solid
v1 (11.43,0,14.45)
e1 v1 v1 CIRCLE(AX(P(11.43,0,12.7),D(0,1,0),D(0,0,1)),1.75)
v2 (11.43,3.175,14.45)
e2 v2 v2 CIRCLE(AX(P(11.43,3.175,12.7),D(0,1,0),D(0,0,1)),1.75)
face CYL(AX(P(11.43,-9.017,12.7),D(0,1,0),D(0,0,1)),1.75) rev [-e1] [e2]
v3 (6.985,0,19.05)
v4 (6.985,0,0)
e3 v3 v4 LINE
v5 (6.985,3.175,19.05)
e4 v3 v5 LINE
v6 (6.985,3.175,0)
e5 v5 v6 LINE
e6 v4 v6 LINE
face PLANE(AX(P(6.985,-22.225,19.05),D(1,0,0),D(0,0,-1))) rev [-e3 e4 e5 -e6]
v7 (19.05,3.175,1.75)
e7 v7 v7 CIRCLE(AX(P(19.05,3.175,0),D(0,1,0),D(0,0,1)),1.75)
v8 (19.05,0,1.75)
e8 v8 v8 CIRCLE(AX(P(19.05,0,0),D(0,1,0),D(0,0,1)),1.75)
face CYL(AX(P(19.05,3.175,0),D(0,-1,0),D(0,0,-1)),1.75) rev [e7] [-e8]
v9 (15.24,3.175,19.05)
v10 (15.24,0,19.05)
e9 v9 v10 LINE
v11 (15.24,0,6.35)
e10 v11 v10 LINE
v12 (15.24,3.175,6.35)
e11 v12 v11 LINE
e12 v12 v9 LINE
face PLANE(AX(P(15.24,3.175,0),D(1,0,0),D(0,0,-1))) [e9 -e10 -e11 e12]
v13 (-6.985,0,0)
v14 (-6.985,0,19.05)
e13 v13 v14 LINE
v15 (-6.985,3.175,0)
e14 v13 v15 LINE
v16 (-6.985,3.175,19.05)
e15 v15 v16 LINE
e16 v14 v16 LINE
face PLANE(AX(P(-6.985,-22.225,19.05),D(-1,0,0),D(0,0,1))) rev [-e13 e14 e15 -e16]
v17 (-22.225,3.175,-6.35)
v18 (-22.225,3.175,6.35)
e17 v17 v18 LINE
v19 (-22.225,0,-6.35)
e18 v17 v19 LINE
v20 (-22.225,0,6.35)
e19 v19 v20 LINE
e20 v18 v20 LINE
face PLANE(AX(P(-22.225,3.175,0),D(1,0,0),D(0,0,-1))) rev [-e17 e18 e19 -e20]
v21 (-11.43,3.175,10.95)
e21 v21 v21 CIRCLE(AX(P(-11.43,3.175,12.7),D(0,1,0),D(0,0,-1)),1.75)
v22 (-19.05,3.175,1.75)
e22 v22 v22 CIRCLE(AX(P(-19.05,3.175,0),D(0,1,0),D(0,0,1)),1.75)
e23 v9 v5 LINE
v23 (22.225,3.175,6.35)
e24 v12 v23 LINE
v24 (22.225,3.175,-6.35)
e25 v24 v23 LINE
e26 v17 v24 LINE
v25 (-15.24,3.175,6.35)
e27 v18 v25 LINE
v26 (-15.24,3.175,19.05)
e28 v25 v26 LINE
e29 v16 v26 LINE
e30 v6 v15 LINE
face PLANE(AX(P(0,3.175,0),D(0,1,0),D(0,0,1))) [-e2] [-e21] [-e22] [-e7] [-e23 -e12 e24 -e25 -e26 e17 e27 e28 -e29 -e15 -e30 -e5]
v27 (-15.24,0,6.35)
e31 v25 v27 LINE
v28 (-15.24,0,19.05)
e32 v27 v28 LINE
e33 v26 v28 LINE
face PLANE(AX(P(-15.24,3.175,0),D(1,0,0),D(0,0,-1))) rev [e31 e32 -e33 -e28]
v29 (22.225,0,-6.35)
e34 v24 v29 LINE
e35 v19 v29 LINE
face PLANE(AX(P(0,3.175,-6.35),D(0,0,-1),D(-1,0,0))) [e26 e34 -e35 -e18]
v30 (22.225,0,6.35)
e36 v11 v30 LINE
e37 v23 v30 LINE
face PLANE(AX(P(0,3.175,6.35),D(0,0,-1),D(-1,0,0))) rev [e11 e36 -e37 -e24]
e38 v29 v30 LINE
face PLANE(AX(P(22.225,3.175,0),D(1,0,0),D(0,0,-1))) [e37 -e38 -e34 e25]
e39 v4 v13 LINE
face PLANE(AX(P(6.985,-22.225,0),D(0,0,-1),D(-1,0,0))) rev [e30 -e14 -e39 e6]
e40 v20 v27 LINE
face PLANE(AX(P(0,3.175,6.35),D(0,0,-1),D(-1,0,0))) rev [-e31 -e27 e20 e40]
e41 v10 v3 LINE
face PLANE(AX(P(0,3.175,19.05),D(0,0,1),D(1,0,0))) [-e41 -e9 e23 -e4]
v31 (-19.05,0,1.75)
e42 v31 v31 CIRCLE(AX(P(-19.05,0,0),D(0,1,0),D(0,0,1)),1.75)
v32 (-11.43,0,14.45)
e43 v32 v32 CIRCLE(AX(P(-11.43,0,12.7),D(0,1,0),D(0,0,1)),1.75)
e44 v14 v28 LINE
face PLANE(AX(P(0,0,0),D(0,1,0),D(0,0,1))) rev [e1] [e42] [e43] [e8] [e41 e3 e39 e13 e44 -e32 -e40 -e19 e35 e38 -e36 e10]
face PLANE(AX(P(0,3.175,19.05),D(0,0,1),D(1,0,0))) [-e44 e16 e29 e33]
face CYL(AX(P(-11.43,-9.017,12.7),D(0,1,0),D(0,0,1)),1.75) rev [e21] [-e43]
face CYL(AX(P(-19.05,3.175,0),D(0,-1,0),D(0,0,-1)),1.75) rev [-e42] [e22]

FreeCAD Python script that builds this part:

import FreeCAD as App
import Part
import Sketcher

V = App.Vector
Q = App.Units.Quantity

doc = App.newDocument("Part")
params = doc.addObject("Spreadsheet::Sheet", "Params")
for row, (alias, value) in enumerate([
    ("sketch1_width", "1.2 in"),
    ("sketch1_height", "0.5 in"),
    ("sketch1_width2", "1.75 in"),
    ("pad1_length", "0.125 in"),
    ("pocket1_length", "0.48 in"),
    ("sketch3_width", "0.55 in"),
    ("sketch3_height", "0.75 in"),
    ("pocket2_length", "1 in"),
], start=1):
    params.set(f"A{row}", alias)
    params.set(f"B{row}", "=" + value)
    params.setAlias(f"B{row}", alias)

body = doc.addObject("PartDesign::Body", "Body")

sketch1 = doc.addObject("Sketcher::SketchObject", "Sketch")
body.addObject(sketch1)
sketch1.AttachmentSupport = (doc.XZ_Plane, [""])
sketch1.MapMode = "FlatFace"
sketch1.addGeometry([
    Part.LineSegment(V(22.2, 6.3, 0), V(22.2, -6.3, 0)),
    Part.LineSegment(V(22.2, -6.3, 0), V(-22.2, -6.3, 0)),
    Part.LineSegment(V(-22.2, -6.3, 0), V(-22.2, 6.3, 0)),
    Part.LineSegment(V(-22.2, 6.3, 0), V(-15.2, 6.3, 0)),
    Part.LineSegment(V(-15.2, 6.3, 0), V(-15.2, 19.1, 0)),
    Part.LineSegment(V(-15.2, 19.1, 0), V(15.2, 19.1, 0)),
    Part.LineSegment(V(15.2, 19.1, 0), V(15.2, 6.3, 0)),
    Part.LineSegment(V(15.2, 6.3, 0), V(22.2, 6.3, 0)),
    Part.Circle(V(19.1, 0, 0), V(0, 0, 1), 1.8),
    Part.Circle(V(-19.1, 0, 0), V(0, 0, 1), 1.8),
], False)
sketch1.addConstraint([
    Sketcher.Constraint("Coincident", 0, 2, 1, 1),
    Sketcher.Constraint("Coincident", 1, 2, 2, 1),
    Sketcher.Constraint("Coincident", 2, 2, 3, 1),
    Sketcher.Constraint("Coincident", 3, 2, 4, 1),
    Sketcher.Constraint("Coincident", 4, 2, 5, 1),
    Sketcher.Constraint("Coincident", 5, 2, 6, 1),
    Sketcher.Constraint("Coincident", 6, 2, 7, 1),
    Sketcher.Constraint("Coincident", 7, 2, 0, 1),
    Sketcher.Constraint("Vertical", 0),
    Sketcher.Constraint("Horizontal", 1),
    Sketcher.Constraint("Vertical", 2),
    Sketcher.Constraint("Horizontal", 3),
    Sketcher.Constraint("Vertical", 4),
    Sketcher.Constraint("Horizontal", 5),
    Sketcher.Constraint("Vertical", 6),
    Sketcher.Constraint("Horizontal", 7),
    Sketcher.Constraint("Equal", 8, 9),
    Sketcher.Constraint("Symmetric", 8, 3, 9, 3, -1, 1),
    Sketcher.Constraint("Symmetric", 0, 2, 2, 2, -1, 1),
    Sketcher.Constraint("Symmetric", 3, 2, 6, 2, -2),
    Sketcher.Constraint("PointOnObject", 8, 3, -1),
    Sketcher.Constraint("Equal", 2, 4),
    Sketcher.Constraint("DistanceX", 5, 1, 5, 2, Q("1.2 in")),
    Sketcher.Constraint("DistanceY", 0, 2, 0, 1, Q("0.5 in")),
    Sketcher.Constraint("DistanceX", 1, 2, 1, 1, Q("1.75 in")),
    Sketcher.Constraint("DistanceX", 9, 3, 8, 3, Q("1.5 in")),
    Sketcher.Constraint("Diameter", 8, 3.5),
])
sketch1.setExpression("Constraints[22]", "Params.sketch1_width")
sketch1.setExpression("Constraints[23]", "Params.sketch1_height")
sketch1.setExpression("Constraints[24]", "Params.sketch1_width2")
pad1 = doc.addObject("PartDesign::Pad", "Pad")
body.addObject(pad1)
pad1.Profile = sketch1
pad1.setExpression("Length", "Params.pad1_length")
pad1.Reversed = True

sketch2 = doc.addObject("Sketcher::SketchObject", "Sketch001")
body.addObject(sketch2)
sketch2.AttachmentSupport = (doc.XZ_Plane, [""])
sketch2.MapMode = "FlatFace"
sketch2.AttachmentOffset = App.Placement(V(0, 0, -0.125 * 25.4), App.Rotation())
sketch2.addGeometry([
    Part.Circle(V(11.4, 12.7, 0), V(0, 0, 1), 1.8),
    Part.Circle(V(-11.4, 12.7, 0), V(0, 0, 1), 1.8),
], False)
sketch2.addConstraint([
    Sketcher.Constraint("Equal", 0, 1),
    Sketcher.Constraint("Symmetric", 0, 3, 1, 3, -2),
    Sketcher.Constraint("DistanceY", -1, 1, 0, 3, Q("0.5 in")),
    Sketcher.Constraint("DistanceX", 1, 3, 0, 3, Q("0.9 in")),
    Sketcher.Constraint("Diameter", 0, 3.5),
])
pocket1 = doc.addObject("PartDesign::Pocket", "Pocket")
body.addObject(pocket1)
pocket1.Profile = sketch2
pocket1.setExpression("Length", "Params.pocket1_length")
pocket1.Reversed = True

sketch3 = doc.addObject("Sketcher::SketchObject", "Sketch002")
body.addObject(sketch3)
sketch3.AttachmentSupport = (doc.XZ_Plane, [""])
sketch3.MapMode = "FlatFace"
sketch3.AttachmentOffset = App.Placement(V(0, 0, -0.125 * 25.4), App.Rotation())
sketch3.addGeometry([
    Part.LineSegment(V(7, 19, 0), V(7, 0, 0)),
    Part.LineSegment(V(7, 0, 0), V(-7, 0, 0)),
    Part.LineSegment(V(-7, 0, 0), V(-7, 19, 0)),
    Part.LineSegment(V(-7, 19, 0), V(7, 19, 0)),
], False)
sketch3.addConstraint([
    Sketcher.Constraint("Coincident", 0, 2, 1, 1),
    Sketcher.Constraint("Coincident", 1, 2, 2, 1),
    Sketcher.Constraint("Coincident", 2, 2, 3, 1),
    Sketcher.Constraint("Coincident", 3, 2, 0, 1),
    Sketcher.Constraint("Vertical", 0),
    Sketcher.Constraint("Horizontal", 1),
    Sketcher.Constraint("Vertical", 2),
    Sketcher.Constraint("Horizontal", 3),
    Sketcher.Constraint("Symmetric", 0, 2, 1, 2, -1, 1),
    Sketcher.Constraint("DistanceX", 1, 2, 1, 1, Q("0.55 in")),
    Sketcher.Constraint("DistanceY", 0, 2, 0, 1, Q("0.75 in")),
])
sketch3.setExpression("Constraints[9]", "Params.sketch3_width")
sketch3.setExpression("Constraints[10]", "Params.sketch3_height")
pocket2 = doc.addObject("PartDesign::Pocket", "Pocket001")
body.addObject(pocket2)
pocket2.Profile = sketch3
pocket2.setExpression("Length", "Params.pocket2_length")
pocket2.Reversed = True

doc.recompute()
